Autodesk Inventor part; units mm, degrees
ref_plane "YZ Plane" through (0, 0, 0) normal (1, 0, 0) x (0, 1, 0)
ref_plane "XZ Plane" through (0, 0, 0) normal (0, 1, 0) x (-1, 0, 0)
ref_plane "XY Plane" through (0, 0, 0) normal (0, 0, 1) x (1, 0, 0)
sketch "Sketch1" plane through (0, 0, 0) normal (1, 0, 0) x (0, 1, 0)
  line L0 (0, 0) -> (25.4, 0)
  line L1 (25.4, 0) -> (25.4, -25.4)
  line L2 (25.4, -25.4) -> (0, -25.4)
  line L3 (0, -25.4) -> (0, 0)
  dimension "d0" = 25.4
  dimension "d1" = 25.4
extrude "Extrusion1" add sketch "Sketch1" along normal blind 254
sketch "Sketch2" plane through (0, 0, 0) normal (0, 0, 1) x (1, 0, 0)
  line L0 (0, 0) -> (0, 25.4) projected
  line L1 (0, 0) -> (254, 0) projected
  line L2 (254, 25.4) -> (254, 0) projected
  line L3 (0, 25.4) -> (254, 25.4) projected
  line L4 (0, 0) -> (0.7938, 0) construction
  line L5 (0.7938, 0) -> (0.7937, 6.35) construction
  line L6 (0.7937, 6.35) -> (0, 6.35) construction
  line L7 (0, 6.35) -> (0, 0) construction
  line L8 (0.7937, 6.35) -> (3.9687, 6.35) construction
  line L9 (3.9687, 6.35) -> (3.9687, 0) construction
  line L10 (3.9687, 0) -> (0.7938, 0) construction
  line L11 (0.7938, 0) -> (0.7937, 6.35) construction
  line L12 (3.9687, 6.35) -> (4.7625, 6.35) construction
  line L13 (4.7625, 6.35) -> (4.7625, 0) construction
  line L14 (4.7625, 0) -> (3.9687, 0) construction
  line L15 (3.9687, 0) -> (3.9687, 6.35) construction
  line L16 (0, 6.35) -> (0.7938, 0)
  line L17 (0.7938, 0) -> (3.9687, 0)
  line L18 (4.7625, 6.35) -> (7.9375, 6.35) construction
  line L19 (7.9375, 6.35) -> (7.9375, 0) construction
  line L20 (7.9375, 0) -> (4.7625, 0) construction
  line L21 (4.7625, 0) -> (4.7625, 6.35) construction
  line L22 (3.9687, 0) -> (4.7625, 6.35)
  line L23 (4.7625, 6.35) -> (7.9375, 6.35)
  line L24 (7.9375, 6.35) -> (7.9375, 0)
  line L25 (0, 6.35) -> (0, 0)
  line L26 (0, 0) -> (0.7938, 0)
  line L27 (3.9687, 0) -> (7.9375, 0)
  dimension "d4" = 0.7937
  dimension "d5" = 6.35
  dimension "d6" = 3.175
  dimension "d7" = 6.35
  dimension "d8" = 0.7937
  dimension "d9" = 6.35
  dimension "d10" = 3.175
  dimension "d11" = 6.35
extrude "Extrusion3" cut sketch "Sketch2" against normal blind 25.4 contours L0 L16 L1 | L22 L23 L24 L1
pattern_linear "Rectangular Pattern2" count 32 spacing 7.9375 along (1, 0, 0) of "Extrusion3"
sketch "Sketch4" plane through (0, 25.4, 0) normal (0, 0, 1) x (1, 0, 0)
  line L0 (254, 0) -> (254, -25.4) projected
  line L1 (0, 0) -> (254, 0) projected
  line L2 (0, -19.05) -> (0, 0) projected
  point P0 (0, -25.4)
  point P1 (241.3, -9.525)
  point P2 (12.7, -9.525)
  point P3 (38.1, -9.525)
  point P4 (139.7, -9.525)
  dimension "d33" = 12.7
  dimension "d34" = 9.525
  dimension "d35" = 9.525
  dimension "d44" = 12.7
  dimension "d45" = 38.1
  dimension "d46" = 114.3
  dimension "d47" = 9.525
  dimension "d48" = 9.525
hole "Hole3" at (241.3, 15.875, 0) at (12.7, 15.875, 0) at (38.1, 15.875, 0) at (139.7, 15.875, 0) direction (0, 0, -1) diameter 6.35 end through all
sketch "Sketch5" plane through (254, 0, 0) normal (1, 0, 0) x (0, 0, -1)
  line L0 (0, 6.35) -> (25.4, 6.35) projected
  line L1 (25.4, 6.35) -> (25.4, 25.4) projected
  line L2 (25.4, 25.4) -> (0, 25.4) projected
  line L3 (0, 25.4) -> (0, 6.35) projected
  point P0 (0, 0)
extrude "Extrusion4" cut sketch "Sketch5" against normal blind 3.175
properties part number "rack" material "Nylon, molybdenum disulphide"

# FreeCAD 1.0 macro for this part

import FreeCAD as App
import Part
import Sketcher
Q = App.Units.Quantity

doc = App.newDocument("Part")
body = doc.addObject("PartDesign::Body", "Body")

# Sketch on YZ plane
sketch1 = doc.addObject("Sketcher::SketchObject", "Sketch")
body.addObject(sketch1)
sketch1.AttachmentSupport = (doc.YZ_Plane, [""])
sketch1.MapMode = "FlatFace"
sketch1.addGeometry([
    Part.LineSegment(App.Vector(25, 0, 0), App.Vector(0, 0, 0)),
    Part.LineSegment(App.Vector(0, 0, 0), App.Vector(0, -25, 0)),
    Part.LineSegment(App.Vector(0, -25, 0), App.Vector(25, -25, 0)),
    Part.LineSegment(App.Vector(25, -25, 0), App.Vector(25, 0, 0)),
], False)
sketch1.addConstraint([
    Sketcher.Constraint("Coincident", 0, 2, 1, 1),
    Sketcher.Constraint("Coincident", 1, 2, 2, 1),
    Sketcher.Constraint("Coincident", 2, 2, 3, 1),
    Sketcher.Constraint("Coincident", 3, 2, 0, 1),
    Sketcher.Constraint("Horizontal", 0),
    Sketcher.Constraint("Vertical", 1),
    Sketcher.Constraint("Horizontal", 2),
    Sketcher.Constraint("Vertical", 3),
    Sketcher.Constraint("Coincident", 0, 2, -1, 1),
    Sketcher.Constraint("Equal", 2, 1),
    Sketcher.Constraint("DistanceX", 0, 2, 0, 1, Q("1 in")),
])
pad1 = doc.addObject("PartDesign::Pad", "Pad")
body.addObject(pad1)
pad1.Profile = sketch1
pad1.Length = Q("10 in")

# Sketch on XY plane
sketch2 = doc.addObject("Sketcher::SketchObject", "Sketch001")
body.addObject(sketch2)
sketch2.AttachmentSupport = (doc.XY_Plane, [""])
sketch2.MapMode = "FlatFace"
sketch2.addGeometry([
    Part.LineSegment(App.Vector(0, 6.3, 0), App.Vector(0, 0, 0)),  # 0
    Part.LineSegment(App.Vector(0, 0, 0), App.Vector(0.8, 0, 0)),  # 1
    Part.LineSegment(App.Vector(0.8, 0, 0), App.Vector(0, 6.3, 0)),  # 2
    Part.LineSegment(App.Vector(4.8, 6.3, 0), App.Vector(4, 0, 0)),  # 3
    Part.LineSegment(App.Vector(4, 0, 0), App.Vector(7.9, 0, 0)),  # 4
    Part.LineSegment(App.Vector(7.9, 0, 0), App.Vector(7.9, 6.3, 0)),  # 5
    Part.LineSegment(App.Vector(7.9, 6.3, 0), App.Vector(4.8, 6.3, 0)),  # 6
], False)
sketch2.addConstraint([
    Sketcher.Constraint("Coincident", 0, 2, 1, 1),
    Sketcher.Constraint("Coincident", 1, 2, 2, 1),
    Sketcher.Constraint("Coincident", 2, 2, 0, 1),
    Sketcher.Constraint("Coincident", 3, 2, 4, 1),
    Sketcher.Constraint("Coincident", 4, 2, 5, 1),
    Sketcher.Constraint("Coincident", 5, 2, 6, 1),
    Sketcher.Constraint("Coincident", 6, 2, 3, 1),
    Sketcher.Constraint("Vertical", 0),
    Sketcher.Constraint("Horizontal", 1),
    Sketcher.Constraint("Horizontal", 4),
    Sketcher.Constraint("Vertical", 5),
    Sketcher.Constraint("Horizontal", 6),
    Sketcher.Constraint("Coincident", 0, 2, -1, 1),
    Sketcher.Constraint("PointOnObject", 3, 2, -1),
    Sketcher.Constraint("Horizontal", 2, 2, 5, 2),
    Sketcher.Constraint("Equal", 2, 3),
    Sketcher.Constraint("DistanceY", 0, 2, 0, 1, Q("0.25 in")),
    Sketcher.Constraint("DistanceX", 1, 1, 1, 2, Q("0.031252 in")),
    Sketcher.Constraint("DistanceX", 6, 2, 6, 1, Q("0.125 in")),
    Sketcher.Constraint("DistanceX", 1, 2, 3, 2, Q("0.125 in")),
])
pocket1 = doc.addObject("PartDesign::Pocket", "Pocket")
body.addObject(pocket1)
pocket1.Profile = sketch2
pocket1.Length = Q("1 in")
doc.recompute()

linearpattern = doc.addObject("PartDesign::LinearPattern", "LinearPattern")
body.addObject(linearpattern)
linearpattern.Originals = [pocket1]
linearpattern.Direction = (doc.X_Axis, [""])
linearpattern.Mode = "offset"
linearpattern.Offset = Q("0.3125 in")
linearpattern.Occurrences = 32
body.Tip = linearpattern

# Sketch on XY plane
sketch3 = doc.addObject("Sketcher::SketchObject", "Sketch002")
body.addObject(sketch3)
sketch3.AttachmentSupport = (doc.XY_Plane, [""])
sketch3.MapMode = "FlatFace"
sketch3.addGeometry([
    Part.Circle(App.Vector(241.3, 15.9, 0), App.Vector(0, 0, 1), 3.2),
    Part.Circle(App.Vector(12.7, 15.9, 0), App.Vector(0, 0, 1), 3.2),
    Part.Circle(App.Vector(38.1, 15.9, 0), App.Vector(0, 0, 1), 3.2),
    Part.Circle(App.Vector(139.7, 15.9, 0), App.Vector(0, 0, 1), 3.2),
], False)
sketch3.addConstraint([
    Sketcher.Constraint("Equal", 0, 1),
    Sketcher.Constraint("Equal", 1, 2),
    Sketcher.Constraint("Equal", 2, 3),
    Sketcher.Constraint("Horizontal", 0, 3, 1, 3),
    Sketcher.Constraint("Horizontal", 1, 3, 2, 3),
    Sketcher.Constraint("Horizontal", 2, 3, 3, 3),
    Sketcher.Constraint("Diameter", 0, Q("0.25 in")),
    Sketcher.Constraint("DistanceX", 1, 3, 0, 3, Q("9 in")),
    Sketcher.Constraint("DistanceX", 1, 3, 2, 3, Q("1 in")),
    Sketcher.Constraint("DistanceX", 2, 3, 3, 3, Q("4 in")),
    Sketcher.Constraint("DistanceX", -1, 1, 0, 3, Q("9.5 in")),
    Sketcher.Constraint("DistanceY", -1, 1, 0, 3, Q("0.625 in")),
])
doc.recompute()
hole = doc.addObject("PartDesign::Hole", "Hole")
body.addObject(hole)
hole.Profile = sketch3
hole.ThreadType = "None"
hole.Diameter = Q("0.25 in")
hole.DepthType = "ThroughAll"

# Sketch on YZ plane
sketch4 = doc.addObject("Sketcher::SketchObject", "Sketch003")
body.addObject(sketch4)
sketch4.AttachmentSupport = (doc.YZ_Plane, [""])
sketch4.MapMode = "FlatFace"
sketch4.AttachmentOffset = App.Placement(App.Vector(0, 0, 10 * 25.4), App.Rotation())
sketch4.addGeometry([
    Part.LineSegment(App.Vector(25, 0, 0), App.Vector(6, 0, 0)),
    Part.LineSegment(App.Vector(6, 0, 0), App.Vector(6, -25, 0)),
    Part.LineSegment(App.Vector(6, -25, 0), App.Vector(25, -25, 0)),
    Part.LineSegment(App.Vector(25, -25, 0), App.Vector(25, 0, 0)),
], False)
sketch4.addConstraint([
    Sketcher.Constraint("Coincident", 0, 2, 1, 1),
    Sketcher.Constraint("Coincident", 1, 2, 2, 1),
    Sketcher.Constraint("Coincident", 2, 2, 3, 1),
    Sketcher.Constraint("Coincident", 3, 2, 0, 1),
    Sketcher.Constraint("Horizontal", 0),
    Sketcher.Constraint("Vertical", 1),
    Sketcher.Constraint("Horizontal", 2),
    Sketcher.Constraint("Vertical", 3),
    Sketcher.Constraint("PointOnObject", 0, 2, -1),
    Sketcher.Constraint("DistanceY", 1, 2, 1, 1, Q("1 in")),
    Sketcher.Constraint("DistanceX", -1, 1, 2, 2, Q("1 in")),
    Sketcher.Constraint("DistanceX", 0, 2, 0, 1, Q("0.75 in")),
])
pocket2 = doc.addObject("PartDesign::Pocket", "Pocket001")
body.addObject(pocket2)
pocket2.Profile = sketch4
pocket2.Length = Q("0.125 in")

doc.recompute()
